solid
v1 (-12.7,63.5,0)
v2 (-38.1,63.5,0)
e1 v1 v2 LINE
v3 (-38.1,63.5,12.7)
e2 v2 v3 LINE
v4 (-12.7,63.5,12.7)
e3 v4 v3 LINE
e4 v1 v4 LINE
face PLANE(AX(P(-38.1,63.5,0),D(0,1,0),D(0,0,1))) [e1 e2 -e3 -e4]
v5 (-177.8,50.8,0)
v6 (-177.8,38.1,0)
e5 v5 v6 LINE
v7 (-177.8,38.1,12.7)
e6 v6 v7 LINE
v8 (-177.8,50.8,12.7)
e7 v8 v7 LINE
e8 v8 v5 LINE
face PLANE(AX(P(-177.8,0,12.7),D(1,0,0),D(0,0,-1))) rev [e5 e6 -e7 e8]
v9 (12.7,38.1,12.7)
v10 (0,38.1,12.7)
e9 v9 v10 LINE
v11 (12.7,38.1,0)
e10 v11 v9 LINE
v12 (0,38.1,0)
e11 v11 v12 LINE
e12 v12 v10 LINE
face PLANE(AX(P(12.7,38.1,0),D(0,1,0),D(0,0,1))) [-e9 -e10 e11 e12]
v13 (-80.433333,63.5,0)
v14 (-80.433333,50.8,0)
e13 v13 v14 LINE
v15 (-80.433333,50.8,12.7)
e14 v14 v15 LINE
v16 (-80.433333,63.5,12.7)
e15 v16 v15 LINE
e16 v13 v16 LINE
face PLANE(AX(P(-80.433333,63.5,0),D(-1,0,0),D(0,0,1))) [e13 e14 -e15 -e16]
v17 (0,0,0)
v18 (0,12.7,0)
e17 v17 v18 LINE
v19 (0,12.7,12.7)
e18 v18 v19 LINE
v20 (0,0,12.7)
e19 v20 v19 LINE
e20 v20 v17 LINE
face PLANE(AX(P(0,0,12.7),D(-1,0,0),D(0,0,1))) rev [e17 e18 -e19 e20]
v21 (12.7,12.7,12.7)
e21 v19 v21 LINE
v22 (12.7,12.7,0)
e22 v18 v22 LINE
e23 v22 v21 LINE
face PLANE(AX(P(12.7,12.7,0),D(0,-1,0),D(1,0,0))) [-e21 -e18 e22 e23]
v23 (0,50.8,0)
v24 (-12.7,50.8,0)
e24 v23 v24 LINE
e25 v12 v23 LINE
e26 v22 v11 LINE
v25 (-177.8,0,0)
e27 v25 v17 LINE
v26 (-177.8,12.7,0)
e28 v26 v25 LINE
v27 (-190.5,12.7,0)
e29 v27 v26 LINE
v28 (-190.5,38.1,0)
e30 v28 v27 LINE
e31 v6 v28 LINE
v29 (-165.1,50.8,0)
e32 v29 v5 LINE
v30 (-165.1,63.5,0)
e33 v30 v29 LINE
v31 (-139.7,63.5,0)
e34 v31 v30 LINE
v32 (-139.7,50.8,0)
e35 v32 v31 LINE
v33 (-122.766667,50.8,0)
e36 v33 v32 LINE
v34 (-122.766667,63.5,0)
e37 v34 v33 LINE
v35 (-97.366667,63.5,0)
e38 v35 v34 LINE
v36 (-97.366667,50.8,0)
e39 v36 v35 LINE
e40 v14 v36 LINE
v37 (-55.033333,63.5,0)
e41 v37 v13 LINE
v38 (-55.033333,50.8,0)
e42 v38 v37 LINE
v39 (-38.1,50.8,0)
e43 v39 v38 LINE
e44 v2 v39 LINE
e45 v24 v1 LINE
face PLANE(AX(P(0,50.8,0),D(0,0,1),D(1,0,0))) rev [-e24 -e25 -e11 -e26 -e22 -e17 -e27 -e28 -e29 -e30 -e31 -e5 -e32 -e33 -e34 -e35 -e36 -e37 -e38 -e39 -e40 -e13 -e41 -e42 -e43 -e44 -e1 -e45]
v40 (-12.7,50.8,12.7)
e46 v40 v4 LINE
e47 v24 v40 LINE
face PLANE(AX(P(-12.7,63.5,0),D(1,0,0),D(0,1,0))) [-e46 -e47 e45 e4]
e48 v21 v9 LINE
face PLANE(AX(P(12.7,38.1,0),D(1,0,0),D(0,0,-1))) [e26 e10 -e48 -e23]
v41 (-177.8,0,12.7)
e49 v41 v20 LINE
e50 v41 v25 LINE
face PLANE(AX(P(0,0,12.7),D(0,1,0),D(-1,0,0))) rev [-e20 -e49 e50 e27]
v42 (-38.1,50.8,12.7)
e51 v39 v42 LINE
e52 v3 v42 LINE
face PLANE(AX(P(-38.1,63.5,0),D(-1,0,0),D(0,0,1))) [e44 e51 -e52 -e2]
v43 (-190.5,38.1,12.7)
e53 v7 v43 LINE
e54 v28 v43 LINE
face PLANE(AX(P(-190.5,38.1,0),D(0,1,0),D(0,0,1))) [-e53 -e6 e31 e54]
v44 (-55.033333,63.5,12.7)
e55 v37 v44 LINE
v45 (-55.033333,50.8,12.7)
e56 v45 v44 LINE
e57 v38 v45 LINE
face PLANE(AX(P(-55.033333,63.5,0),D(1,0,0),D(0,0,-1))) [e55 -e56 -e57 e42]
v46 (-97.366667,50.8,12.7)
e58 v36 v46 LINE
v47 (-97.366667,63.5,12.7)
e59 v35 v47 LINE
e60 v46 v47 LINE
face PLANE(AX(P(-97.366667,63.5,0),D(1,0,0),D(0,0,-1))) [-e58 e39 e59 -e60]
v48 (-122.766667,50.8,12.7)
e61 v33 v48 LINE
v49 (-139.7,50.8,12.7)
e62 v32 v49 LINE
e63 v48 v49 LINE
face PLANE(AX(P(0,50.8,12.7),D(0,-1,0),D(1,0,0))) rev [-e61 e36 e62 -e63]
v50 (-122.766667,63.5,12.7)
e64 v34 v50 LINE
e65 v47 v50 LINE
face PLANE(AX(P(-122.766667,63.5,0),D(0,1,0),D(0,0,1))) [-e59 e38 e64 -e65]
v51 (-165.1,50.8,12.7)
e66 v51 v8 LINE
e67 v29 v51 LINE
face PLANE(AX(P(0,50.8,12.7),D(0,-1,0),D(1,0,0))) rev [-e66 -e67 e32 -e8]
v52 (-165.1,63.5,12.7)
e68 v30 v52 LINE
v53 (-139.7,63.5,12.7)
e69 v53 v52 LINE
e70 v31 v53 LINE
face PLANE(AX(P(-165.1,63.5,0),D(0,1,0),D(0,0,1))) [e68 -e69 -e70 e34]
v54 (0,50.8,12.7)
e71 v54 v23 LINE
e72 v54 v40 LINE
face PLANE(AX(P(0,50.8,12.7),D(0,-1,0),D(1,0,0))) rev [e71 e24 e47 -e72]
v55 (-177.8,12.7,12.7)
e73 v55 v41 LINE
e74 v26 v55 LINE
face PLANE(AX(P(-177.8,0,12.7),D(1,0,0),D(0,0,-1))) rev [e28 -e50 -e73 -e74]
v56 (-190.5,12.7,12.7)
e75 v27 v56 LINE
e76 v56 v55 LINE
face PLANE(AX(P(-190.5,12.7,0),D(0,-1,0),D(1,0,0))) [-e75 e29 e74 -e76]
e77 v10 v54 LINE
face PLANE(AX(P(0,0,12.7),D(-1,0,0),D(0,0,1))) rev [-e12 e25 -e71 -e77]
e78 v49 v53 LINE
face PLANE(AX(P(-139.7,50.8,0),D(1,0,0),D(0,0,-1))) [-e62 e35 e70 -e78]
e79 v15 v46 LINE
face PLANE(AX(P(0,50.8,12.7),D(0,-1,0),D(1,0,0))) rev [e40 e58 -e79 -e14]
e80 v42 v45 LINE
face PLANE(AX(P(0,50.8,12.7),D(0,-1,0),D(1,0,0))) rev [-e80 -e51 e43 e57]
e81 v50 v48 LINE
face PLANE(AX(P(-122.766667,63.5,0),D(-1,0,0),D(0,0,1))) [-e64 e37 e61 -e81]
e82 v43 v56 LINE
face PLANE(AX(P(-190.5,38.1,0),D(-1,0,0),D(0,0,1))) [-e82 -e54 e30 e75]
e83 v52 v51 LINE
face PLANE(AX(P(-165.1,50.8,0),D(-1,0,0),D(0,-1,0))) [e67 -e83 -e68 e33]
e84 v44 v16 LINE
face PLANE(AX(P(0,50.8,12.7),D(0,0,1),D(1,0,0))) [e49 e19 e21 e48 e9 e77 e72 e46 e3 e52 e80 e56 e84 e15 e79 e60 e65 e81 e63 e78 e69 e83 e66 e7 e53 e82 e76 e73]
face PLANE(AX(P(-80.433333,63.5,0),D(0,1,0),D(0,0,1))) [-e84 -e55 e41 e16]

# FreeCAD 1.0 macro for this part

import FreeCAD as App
import Part
import Sketcher
from FreeCAD import Vector
Q = App.Units.Quantity


def add_polygon(sketch, points):
    """Adds a closed chain of lines whose ends are joined by coincident constraints."""
    first, n = sketch.GeometryCount, len(points)
    for a, b in zip(points, points[1:] + points[:1]):
        sketch.addGeometry(Part.LineSegment(App.Vector(*a, 0), App.Vector(*b, 0)), False)
    for i in range(n):
        sketch.addConstraint(Sketcher.Constraint("Coincident", first + i, 2, first + (i + 1) % n, 1))

doc = App.newDocument("Part")
params = doc.addObject("Spreadsheet::Sheet", "Params")
for row, (alias, value) in enumerate([
    ("sketch1_width", "7 in"),
    ("sketch1_height", "2 in"),
    ("pad1_length", "0.5 in"),
    ("sketch2_width", "1 in"),
    ("sketch2_width2", "0.5 in"),
], start=1):
    params.set(f"A{row}", alias)
    params.set(f"B{row}", "=" + value)
    params.setAlias(f"B{row}", alias)

body = doc.addObject("PartDesign::Body", "Body")

sketch1 = body.newObject("Sketcher::SketchObject", "Sketch")
sketch1.AttachmentSupport = (doc.getObject("XY_Plane"), [""])
sketch1.MapMode = "FlatFace"
add_polygon(sketch1, [(-177.8, 50.8), (-177.8, 0), (0, 0), (0, 50.8)])
sketch1.addConstraint([
    Sketcher.Constraint("Vertical", 0),
    Sketcher.Constraint("Horizontal", 1),
    Sketcher.Constraint("Vertical", 2),
    Sketcher.Constraint("Horizontal", 3),
    Sketcher.Constraint("Coincident", 1, 2, -1, 1),
    Sketcher.Constraint("DistanceX", 1, 1, 1, 2, Q("7 in")),
    Sketcher.Constraint("DistanceY", 0, 2, 0, 1, Q("2 in")),
])
sketch1.setExpression("Constraints[9]", "Params.sketch1_width")
sketch1.setExpression("Constraints[10]", "Params.sketch1_height")
pad1 = body.newObject("PartDesign::Pad", "Pad")
pad1.Profile = sketch1
pad1.setExpression("Length", "Params.pad1_length")

sketch2 = body.newObject("Sketcher::SketchObject", "Sketch001")
sketch2.AttachmentSupport = (doc.getObject("XY_Plane"), [""])
sketch2.MapMode = "FlatFace"
sketch2.AttachmentOffset = App.Placement(Vector(0, 0, 0.5 * 25.4), App.Rotation())
add_polygon(sketch2, [(-165.1, 63.5), (-165.1, 50.8), (-139.7, 50.8), (-139.7, 63.5)])
add_polygon(sketch2, [(-122.766667, 63.5), (-122.766667, 50.8), (-97.366667, 50.8), (-97.366667, 63.5)])
add_polygon(sketch2, [(-80.433333, 63.5), (-80.433333, 50.8), (-55.033333, 50.8), (-55.033333, 63.5)])
add_polygon(sketch2, [(-38.1, 63.5), (-38.1, 50.8), (-12.7, 50.8), (-12.7, 63.5)])
add_polygon(sketch2, [(0, 38.1), (0, 12.7), (12.7, 12.7), (12.7, 38.1)])
add_polygon(sketch2, [(-190.5, 38.1), (-190.5, 12.7), (-177.8, 12.7), (-177.8, 38.1)])
sketch2.addConstraint([
    Sketcher.Constraint("Vertical", 0),
    Sketcher.Constraint("Horizontal", 1),
    Sketcher.Constraint("Vertical", 2),
    Sketcher.Constraint("Horizontal", 3),
    Sketcher.Constraint("Vertical", 4),
    Sketcher.Constraint("Horizontal", 5),
    Sketcher.Constraint("Vertical", 6),
    Sketcher.Constraint("Horizontal", 7),
    Sketcher.Constraint("Vertical", 8),
    Sketcher.Constraint("Horizontal", 9),
    Sketcher.Constraint("Vertical", 10),
    Sketcher.Constraint("Horizontal", 11),
    Sketcher.Constraint("Vertical", 12),
    Sketcher.Constraint("Horizontal", 13),
    Sketcher.Constraint("Vertical", 14),
    Sketcher.Constraint("Horizontal", 15),
    Sketcher.Constraint("Vertical", 16),
    Sketcher.Constraint("Horizontal", 17),
    Sketcher.Constraint("Vertical", 18),
    Sketcher.Constraint("Horizontal", 19),
    Sketcher.Constraint("Vertical", 20),
    Sketcher.Constraint("Horizontal", 21),
    Sketcher.Constraint("Vertical", 22),
    Sketcher.Constraint("Horizontal", 23),
    Sketcher.Constraint("PointOnObject", 16, 2, -2),
    Sketcher.Constraint("Horizontal", 1, 2, 4, 2),
    Sketcher.Constraint("Horizontal", 3, 2, 6, 2),
    Sketcher.Constraint("Horizontal", 5, 2, 8, 2),
    Sketcher.Constraint("Horizontal", 7, 2, 10, 2),
    Sketcher.Constraint("Horizontal", 9, 2, 12, 2),
    Sketcher.Constraint("Horizontal", 11, 2, 14, 2),
    Sketcher.Constraint("Horizontal", 17, 2, 20, 2),
    Sketcher.Constraint("Horizontal", 19, 2, 22, 2),
    Sketcher.Constraint("Equal", 3, 5),
    Sketcher.Constraint("Equal", 7, 9),
    Sketcher.Constraint("Equal", 11, 13),
    Sketcher.Constraint("Equal", 19, 21),
    Sketcher.Constraint("Equal", 23, 0),
    Sketcher.Constraint("Equal", 15, 16),
    Sketcher.Constraint("DistanceX", 1, 1, 1, 2, Q("1 in")),
    Sketcher.Constraint("DistanceX", 17, 1, 17, 2, Q("0.5 in")),
    Sketcher.Constraint("DistanceY", -1, 1, 0, 2, Q("2 in")),
    Sketcher.Constraint("DistanceX", 21, 2, -1, 1, Q("7 in")),
    Sketcher.Constraint("DistanceY", 16, 2, 14, 2, Q("2 in")),
    Sketcher.Constraint("DistanceX", 13, 2, 17, 2, Q("1 in")),
    Sketcher.Constraint("DistanceX", 20, 2, 0, 2, Q("1 in")),
    Sketcher.Constraint("DistanceX", 4, 2, -1, 1, 122.766667),
    Sketcher.Constraint("DistanceX", 8, 2, -1, 1, 80.433333),
])
sketch2.setExpression("Constraints[63]", "Params.sketch2_width")
sketch2.setExpression("Constraints[64]", "Params.sketch2_width2")
pad2 = body.newObject("PartDesign::Pad", "Pad001")
pad2.Profile = sketch2
pad2.Type = "UpToLast"
pad2.Reversed = True

doc.recompute()
